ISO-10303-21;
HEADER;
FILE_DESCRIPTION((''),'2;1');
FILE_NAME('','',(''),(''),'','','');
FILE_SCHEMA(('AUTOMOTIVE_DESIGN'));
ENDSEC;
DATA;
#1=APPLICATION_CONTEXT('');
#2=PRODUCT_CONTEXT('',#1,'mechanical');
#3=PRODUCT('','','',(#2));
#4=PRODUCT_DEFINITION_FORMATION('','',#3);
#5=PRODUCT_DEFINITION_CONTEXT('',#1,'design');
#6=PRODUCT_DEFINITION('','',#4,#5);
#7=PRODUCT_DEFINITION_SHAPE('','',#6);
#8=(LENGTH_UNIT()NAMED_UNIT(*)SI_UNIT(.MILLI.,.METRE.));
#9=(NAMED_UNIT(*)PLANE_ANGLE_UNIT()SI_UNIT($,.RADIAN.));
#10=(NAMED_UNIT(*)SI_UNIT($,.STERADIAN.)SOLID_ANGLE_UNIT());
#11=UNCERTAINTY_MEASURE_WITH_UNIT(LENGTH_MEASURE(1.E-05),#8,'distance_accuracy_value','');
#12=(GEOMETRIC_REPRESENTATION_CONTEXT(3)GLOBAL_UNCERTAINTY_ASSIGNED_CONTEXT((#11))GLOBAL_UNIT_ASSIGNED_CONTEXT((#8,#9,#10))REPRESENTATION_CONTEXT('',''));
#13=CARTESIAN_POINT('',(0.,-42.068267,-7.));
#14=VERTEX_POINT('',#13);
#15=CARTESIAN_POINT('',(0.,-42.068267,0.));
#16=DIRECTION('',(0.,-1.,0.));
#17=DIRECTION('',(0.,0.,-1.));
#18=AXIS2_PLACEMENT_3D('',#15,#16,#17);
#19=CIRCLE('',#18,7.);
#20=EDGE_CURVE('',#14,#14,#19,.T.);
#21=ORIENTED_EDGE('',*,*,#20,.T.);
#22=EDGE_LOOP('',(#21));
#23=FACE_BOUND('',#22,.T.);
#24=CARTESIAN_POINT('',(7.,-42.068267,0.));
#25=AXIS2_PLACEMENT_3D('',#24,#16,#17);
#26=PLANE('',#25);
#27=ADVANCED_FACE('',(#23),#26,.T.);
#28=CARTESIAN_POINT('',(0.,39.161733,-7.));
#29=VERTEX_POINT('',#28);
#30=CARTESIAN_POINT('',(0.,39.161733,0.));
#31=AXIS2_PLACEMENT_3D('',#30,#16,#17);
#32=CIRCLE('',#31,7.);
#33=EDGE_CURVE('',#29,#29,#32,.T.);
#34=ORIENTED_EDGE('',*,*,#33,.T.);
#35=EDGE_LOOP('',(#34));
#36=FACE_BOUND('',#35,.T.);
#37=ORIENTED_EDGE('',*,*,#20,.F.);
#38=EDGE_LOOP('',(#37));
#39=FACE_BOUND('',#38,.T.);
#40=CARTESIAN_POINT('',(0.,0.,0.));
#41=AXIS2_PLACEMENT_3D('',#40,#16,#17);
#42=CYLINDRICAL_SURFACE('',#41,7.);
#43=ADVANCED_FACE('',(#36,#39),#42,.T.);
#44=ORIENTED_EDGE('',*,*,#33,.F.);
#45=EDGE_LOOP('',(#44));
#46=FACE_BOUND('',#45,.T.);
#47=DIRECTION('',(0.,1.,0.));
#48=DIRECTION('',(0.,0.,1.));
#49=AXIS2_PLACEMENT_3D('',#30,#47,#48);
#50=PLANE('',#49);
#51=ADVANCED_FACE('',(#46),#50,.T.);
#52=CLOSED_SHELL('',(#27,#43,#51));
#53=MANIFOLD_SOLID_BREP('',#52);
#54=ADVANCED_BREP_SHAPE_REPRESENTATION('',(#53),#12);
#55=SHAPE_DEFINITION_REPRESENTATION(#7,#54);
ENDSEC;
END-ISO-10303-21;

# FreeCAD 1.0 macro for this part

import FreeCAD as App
import Part
import Sketcher

V = App.Vector
Q = App.Units.Quantity

doc = App.newDocument("Part")
body = doc.addObject("PartDesign::Body", "Body")

# Sketch on XY plane
sketch1 = body.newObject("Sketcher::SketchObject", "Sketch")
sketch1.AttachmentSupport = (doc.getObject("XY_Plane"), [""])
sketch1.MapMode = "FlatFace"
sketch1.addGeometry([
    Part.LineSegment(V(0, 39, 0), V(0, -42, 0)),
    Part.LineSegment(V(0, -42, 0), V(7, -42, 0)),
    Part.LineSegment(V(7, -42, 0), V(7, 39, 0)),
    Part.LineSegment(V(7, 39, 0), V(0, 39, 0)),
], False)
sketch1.addConstraint([
    Sketcher.Constraint("Coincident", 0, 2, 1, 1),
    Sketcher.Constraint("Coincident", 1, 2, 2, 1),
    Sketcher.Constraint("Coincident", 2, 2, 3, 1),
    Sketcher.Constraint("Coincident", 3, 2, 0, 1),
    Sketcher.Constraint("Vertical", 0),
    Sketcher.Constraint("Horizontal", 1),
    Sketcher.Constraint("Vertical", 2),
    Sketcher.Constraint("Horizontal", 3),
    Sketcher.Constraint("PointOnObject", 0, 2, -2),
    Sketcher.Constraint("DistanceX", 1, 1, 1, 2, Q("7 mm")),
    Sketcher.Constraint("DistanceY", 0, 2, 0, 1, Q("81.23 mm")),
    Sketcher.Constraint("DistanceY", 0, 2, -1, 1, Q("42.068267 mm")),
])
revolution = body.newObject("PartDesign::Revolution", "Revolution")
revolution.Profile = sketch1
revolution.ReferenceAxis = (sketch1, ["V_Axis"])
revolution.Angle = 360

doc.recompute()
